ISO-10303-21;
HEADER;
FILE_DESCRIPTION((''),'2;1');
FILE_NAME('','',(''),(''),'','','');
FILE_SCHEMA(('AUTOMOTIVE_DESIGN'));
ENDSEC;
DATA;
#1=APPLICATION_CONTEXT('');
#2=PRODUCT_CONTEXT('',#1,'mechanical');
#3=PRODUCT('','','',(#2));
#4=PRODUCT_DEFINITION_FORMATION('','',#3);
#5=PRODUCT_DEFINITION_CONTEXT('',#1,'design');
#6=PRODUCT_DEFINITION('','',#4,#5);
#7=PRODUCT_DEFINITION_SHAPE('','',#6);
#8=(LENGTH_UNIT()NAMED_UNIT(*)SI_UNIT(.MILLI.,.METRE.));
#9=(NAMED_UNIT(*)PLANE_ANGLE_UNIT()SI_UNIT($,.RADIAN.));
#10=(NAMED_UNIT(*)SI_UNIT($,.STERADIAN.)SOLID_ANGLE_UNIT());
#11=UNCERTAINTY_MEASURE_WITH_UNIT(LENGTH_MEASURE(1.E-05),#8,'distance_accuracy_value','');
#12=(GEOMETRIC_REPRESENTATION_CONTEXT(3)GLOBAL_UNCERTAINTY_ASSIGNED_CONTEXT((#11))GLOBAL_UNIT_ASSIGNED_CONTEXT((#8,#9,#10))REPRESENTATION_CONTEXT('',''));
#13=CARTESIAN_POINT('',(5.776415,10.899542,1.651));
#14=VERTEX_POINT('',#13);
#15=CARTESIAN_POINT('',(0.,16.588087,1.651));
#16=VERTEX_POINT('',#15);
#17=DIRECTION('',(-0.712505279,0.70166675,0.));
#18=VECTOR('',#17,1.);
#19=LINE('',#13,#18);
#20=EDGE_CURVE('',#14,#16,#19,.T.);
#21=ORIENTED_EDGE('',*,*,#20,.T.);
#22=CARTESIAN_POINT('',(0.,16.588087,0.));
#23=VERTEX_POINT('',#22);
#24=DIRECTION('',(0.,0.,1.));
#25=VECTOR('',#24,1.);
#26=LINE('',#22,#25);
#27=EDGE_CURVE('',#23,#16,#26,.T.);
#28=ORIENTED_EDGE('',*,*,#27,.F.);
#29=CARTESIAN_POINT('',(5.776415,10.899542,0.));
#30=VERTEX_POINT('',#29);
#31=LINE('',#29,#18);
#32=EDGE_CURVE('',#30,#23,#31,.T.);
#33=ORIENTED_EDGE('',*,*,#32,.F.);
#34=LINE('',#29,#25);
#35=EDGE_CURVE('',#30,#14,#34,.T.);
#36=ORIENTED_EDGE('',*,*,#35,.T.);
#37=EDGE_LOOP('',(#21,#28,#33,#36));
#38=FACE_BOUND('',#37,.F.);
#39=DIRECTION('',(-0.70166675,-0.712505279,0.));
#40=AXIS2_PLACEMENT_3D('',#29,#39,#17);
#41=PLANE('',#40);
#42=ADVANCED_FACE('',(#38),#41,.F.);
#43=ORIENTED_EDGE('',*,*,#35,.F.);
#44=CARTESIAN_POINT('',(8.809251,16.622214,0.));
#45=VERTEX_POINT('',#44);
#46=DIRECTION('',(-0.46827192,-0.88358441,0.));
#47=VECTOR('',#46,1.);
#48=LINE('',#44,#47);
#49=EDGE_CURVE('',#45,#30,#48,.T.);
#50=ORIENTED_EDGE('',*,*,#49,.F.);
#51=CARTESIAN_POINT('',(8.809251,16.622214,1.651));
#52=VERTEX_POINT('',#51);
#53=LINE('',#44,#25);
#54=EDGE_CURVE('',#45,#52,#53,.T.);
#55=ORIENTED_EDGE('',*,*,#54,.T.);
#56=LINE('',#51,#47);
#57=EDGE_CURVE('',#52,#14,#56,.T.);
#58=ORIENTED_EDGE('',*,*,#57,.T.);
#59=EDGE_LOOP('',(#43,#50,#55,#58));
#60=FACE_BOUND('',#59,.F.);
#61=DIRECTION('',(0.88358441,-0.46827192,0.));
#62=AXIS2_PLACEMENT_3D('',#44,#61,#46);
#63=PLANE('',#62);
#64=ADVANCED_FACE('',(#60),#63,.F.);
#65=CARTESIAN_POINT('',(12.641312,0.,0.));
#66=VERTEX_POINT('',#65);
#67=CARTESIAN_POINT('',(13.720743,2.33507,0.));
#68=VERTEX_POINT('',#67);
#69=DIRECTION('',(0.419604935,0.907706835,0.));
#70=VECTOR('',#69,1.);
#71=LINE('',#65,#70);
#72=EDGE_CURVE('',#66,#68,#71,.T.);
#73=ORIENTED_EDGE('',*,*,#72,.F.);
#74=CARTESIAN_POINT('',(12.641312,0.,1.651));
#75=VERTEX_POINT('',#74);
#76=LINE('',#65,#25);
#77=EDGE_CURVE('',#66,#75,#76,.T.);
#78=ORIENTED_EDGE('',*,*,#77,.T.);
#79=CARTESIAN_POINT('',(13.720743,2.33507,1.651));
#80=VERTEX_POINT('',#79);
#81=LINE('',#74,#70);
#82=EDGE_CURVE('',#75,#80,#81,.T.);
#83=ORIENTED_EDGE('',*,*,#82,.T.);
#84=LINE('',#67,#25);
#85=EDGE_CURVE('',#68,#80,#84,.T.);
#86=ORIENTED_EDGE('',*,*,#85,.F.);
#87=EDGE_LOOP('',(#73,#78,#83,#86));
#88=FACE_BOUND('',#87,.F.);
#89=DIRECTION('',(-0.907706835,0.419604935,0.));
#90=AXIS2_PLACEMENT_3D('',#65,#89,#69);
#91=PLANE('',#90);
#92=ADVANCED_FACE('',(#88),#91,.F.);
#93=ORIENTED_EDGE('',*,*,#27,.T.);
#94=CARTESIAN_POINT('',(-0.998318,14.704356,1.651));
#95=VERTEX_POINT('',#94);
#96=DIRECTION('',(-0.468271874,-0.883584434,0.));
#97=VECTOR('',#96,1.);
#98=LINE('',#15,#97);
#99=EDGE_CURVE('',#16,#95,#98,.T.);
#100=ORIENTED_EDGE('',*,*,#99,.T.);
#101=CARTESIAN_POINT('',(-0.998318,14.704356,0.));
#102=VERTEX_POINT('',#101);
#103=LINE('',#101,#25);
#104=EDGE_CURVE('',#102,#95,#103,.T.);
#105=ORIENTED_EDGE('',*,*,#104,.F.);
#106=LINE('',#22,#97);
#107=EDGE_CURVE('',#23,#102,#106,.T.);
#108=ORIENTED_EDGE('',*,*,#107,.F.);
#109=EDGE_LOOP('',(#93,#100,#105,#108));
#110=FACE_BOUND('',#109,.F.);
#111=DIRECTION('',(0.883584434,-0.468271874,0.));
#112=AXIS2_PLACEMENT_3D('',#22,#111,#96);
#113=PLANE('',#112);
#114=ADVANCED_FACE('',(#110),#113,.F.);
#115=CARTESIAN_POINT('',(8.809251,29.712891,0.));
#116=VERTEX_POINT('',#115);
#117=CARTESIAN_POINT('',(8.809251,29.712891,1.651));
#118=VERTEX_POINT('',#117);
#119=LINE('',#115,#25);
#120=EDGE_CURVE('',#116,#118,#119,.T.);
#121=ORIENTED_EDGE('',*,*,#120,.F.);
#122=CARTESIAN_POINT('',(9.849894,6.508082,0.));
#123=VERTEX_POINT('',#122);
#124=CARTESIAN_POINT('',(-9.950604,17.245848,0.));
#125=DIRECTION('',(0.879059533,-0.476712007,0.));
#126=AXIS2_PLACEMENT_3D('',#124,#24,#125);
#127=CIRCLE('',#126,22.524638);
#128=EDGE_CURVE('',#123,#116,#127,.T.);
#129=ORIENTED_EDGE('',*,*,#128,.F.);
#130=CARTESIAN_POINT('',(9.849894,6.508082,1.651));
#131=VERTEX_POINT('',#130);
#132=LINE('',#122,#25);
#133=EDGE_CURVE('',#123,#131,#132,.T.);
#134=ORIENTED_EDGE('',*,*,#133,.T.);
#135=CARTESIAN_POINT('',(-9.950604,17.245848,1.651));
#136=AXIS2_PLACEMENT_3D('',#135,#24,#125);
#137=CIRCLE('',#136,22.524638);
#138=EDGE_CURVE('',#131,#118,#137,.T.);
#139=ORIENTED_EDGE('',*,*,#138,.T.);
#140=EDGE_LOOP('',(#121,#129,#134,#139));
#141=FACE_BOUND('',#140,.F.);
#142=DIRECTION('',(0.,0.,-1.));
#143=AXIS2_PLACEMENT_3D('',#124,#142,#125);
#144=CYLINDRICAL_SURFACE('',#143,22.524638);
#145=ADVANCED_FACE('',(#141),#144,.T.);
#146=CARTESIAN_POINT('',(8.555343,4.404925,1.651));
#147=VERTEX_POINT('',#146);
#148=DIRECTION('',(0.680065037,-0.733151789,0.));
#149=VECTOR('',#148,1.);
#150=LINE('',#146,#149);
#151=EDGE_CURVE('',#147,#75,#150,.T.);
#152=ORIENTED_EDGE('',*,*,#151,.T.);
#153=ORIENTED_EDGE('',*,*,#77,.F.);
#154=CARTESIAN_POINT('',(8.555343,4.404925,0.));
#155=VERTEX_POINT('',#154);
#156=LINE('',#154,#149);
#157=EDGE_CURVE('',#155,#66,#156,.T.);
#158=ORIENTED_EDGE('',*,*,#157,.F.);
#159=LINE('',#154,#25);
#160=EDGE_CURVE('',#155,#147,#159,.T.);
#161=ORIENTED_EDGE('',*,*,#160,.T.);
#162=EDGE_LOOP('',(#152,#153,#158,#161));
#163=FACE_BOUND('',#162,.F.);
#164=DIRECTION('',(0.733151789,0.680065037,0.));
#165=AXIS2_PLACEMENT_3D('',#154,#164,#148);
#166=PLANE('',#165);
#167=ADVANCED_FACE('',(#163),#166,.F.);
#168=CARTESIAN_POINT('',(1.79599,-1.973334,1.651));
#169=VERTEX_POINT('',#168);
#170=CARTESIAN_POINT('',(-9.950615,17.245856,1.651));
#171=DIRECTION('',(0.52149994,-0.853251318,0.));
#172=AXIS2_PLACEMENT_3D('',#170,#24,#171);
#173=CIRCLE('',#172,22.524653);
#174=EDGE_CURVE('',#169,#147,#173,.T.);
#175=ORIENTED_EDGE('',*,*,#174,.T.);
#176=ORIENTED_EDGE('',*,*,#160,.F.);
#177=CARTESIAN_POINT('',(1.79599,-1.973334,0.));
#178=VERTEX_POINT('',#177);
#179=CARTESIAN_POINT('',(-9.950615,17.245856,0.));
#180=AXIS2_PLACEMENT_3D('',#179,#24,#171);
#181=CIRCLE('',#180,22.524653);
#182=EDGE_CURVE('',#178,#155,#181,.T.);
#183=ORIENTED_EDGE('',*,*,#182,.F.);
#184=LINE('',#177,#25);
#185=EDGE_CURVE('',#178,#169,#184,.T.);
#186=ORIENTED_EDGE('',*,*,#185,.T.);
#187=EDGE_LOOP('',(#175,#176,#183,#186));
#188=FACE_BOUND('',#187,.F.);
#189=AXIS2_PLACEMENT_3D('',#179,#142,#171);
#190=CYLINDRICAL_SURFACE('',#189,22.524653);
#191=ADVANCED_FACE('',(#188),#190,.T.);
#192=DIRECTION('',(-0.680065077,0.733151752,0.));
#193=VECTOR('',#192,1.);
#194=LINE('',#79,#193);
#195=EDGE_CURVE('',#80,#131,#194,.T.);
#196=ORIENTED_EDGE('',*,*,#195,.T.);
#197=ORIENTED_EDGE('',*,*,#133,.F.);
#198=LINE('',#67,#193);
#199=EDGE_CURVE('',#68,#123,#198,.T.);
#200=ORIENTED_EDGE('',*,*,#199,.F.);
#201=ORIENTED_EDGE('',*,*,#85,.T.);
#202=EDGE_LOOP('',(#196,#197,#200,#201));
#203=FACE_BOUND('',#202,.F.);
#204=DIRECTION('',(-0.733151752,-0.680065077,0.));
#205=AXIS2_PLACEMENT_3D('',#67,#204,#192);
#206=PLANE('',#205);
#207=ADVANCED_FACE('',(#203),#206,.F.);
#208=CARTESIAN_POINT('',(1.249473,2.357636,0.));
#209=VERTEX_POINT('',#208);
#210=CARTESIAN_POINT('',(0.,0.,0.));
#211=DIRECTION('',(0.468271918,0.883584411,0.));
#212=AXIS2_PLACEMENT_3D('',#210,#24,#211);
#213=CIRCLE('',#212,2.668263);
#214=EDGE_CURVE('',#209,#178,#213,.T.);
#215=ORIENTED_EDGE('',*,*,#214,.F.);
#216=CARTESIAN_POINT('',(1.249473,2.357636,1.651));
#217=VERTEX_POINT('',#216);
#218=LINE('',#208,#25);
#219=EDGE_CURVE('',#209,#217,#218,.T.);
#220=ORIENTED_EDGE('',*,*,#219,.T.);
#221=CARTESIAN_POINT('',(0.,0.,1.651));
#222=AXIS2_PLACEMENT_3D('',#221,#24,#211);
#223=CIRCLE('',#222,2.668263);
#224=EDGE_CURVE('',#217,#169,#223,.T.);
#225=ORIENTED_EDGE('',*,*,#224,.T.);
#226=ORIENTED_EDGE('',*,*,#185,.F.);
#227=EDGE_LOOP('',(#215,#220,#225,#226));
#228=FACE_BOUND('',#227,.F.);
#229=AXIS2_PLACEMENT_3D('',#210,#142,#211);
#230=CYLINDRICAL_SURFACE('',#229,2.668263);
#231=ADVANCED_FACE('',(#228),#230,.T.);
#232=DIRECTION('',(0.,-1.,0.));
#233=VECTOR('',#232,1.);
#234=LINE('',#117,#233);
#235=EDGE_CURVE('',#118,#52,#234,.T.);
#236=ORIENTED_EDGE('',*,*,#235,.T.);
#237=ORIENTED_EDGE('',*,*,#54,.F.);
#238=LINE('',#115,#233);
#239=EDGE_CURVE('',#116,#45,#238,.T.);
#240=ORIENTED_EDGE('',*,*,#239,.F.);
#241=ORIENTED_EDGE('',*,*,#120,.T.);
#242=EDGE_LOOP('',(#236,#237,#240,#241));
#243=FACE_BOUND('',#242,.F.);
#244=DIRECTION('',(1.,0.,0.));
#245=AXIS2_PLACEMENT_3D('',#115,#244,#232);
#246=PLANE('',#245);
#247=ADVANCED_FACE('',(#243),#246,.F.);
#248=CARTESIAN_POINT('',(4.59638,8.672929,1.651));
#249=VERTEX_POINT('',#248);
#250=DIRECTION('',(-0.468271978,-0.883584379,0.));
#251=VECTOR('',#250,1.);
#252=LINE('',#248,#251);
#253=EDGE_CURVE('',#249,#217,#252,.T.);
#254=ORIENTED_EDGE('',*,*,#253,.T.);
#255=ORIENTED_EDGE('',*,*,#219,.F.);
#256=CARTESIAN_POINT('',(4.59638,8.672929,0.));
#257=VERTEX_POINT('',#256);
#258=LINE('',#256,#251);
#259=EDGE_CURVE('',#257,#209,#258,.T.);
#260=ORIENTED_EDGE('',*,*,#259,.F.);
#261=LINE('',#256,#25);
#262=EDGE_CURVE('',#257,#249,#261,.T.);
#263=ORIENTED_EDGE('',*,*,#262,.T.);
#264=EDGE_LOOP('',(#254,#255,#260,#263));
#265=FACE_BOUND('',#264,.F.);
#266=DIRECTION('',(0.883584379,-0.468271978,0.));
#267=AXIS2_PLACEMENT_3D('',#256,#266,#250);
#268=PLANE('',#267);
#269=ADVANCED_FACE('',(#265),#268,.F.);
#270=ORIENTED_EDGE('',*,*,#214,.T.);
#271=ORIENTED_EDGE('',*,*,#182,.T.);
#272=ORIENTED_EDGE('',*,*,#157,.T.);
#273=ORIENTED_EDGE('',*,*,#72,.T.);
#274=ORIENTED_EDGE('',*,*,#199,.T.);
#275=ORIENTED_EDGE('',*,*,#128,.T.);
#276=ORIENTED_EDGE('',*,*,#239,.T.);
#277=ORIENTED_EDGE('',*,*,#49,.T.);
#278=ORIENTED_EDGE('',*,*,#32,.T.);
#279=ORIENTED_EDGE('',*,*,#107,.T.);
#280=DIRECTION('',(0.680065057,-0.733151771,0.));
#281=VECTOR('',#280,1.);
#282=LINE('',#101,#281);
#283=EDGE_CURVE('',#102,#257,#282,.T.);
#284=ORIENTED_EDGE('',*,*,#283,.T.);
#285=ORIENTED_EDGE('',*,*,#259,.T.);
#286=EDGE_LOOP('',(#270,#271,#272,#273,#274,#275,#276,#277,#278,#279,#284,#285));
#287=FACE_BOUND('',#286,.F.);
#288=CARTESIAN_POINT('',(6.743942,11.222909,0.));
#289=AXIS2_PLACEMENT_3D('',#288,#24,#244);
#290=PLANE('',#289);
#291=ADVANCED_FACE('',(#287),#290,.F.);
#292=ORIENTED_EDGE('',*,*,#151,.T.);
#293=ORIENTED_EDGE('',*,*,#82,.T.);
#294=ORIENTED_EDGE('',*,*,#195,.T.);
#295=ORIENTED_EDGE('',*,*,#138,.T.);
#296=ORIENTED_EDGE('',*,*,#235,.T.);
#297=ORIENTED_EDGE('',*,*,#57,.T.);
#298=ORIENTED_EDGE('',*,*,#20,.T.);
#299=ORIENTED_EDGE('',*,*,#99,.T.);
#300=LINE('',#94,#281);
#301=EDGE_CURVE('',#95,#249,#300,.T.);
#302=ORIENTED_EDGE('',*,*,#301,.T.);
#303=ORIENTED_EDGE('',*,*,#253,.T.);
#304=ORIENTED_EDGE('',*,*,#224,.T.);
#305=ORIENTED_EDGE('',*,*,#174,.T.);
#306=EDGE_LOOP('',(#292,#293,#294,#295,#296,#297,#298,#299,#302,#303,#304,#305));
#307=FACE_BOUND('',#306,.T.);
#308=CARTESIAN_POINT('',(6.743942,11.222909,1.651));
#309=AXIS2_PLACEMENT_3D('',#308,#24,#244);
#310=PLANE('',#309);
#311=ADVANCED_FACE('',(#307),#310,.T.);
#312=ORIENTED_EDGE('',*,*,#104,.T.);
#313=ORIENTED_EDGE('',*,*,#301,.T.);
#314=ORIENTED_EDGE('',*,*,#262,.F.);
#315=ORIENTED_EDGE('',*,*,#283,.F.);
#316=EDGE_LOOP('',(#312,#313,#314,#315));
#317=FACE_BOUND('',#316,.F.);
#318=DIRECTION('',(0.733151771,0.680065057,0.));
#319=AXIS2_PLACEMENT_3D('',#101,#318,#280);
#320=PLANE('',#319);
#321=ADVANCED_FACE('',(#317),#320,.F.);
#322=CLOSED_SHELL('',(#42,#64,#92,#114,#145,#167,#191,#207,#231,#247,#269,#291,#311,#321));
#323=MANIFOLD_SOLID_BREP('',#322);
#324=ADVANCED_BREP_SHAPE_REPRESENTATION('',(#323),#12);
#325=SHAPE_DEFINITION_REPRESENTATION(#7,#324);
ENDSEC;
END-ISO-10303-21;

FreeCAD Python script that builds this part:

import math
import FreeCAD as App
import Part
import Sketcher
Q = App.Units.Quantity

doc = App.newDocument("Part")
params = doc.addObject("Spreadsheet::Sheet", "Params")
for row, (alias, value) in enumerate([
    ("pad1_length", "0.065 in"),
], start=1):
    params.set(f"A{row}", alias)
    params.set(f"B{row}", "=" + value)
    params.setAlias(f"B{row}", alias)

body = doc.addObject("PartDesign::Body", "Body")

# Sketch on XY plane
sketch1 = body.newObject("Sketcher::SketchObject", "Sketch")
sketch1.AttachmentSupport = (doc.getObject("XY_Plane"), [""])
sketch1.MapMode = "FlatFace"
sketch1.addGeometry([
    Part.LineSegment(App.Vector(4.6, 8.7, 0), App.Vector(1.2, 2.4, 0)),  # 0
    Part.ArcOfCircle(Part.Circle(App.Vector(0, 0, 0), App.Vector(0, 0, 1), 2.7), math.radians(62), math.radians(312)),  # 1
    Part.ArcOfCircle(Part.Circle(App.Vector(-10, 17.2, 0), App.Vector(0, 0, 1), 22.5), math.radians(-59), math.radians(-35)),  # 2
    Part.LineSegment(App.Vector(8.6, 4.4, 0), App.Vector(12.6, 0, 0)),  # 3
    Part.LineSegment(App.Vector(12.6, 0, 0), App.Vector(13.7, 2.3, 0)),  # 4
    Part.LineSegment(App.Vector(13.7, 2.3, 0), App.Vector(9.8, 6.5, 0)),  # 5
    Part.ArcOfCircle(Part.Circle(App.Vector(-10, 17.2, 0), App.Vector(0, 0, 1), 22.5), math.radians(-28), math.radians(34)),  # 6
    Part.LineSegment(App.Vector(8.8, 29.7, 0), App.Vector(8.8, 16.6, 0)),  # 7
    Part.LineSegment(App.Vector(8.8, 16.6, 0), App.Vector(5.8, 10.9, 0)),  # 8
    Part.LineSegment(App.Vector(5.8, 10.9, 0), App.Vector(0, 16.6, 0)),  # 9
    Part.LineSegment(App.Vector(0, 16.6, 0), App.Vector(-1, 14.7, 0)),  # 10
    Part.LineSegment(App.Vector(-1, 14.7, 0), App.Vector(4.6, 8.7, 0)),  # 11
], False)
sketch1.addConstraint([
    Sketcher.Constraint("Coincident", 0, 2, 1, 1),
    Sketcher.Constraint("Coincident", 1, 2, 2, 1),
    Sketcher.Constraint("Coincident", 2, 2, 3, 1),
    Sketcher.Constraint("Coincident", 3, 2, 4, 1),
    Sketcher.Constraint("Coincident", 4, 2, 5, 1),
    Sketcher.Constraint("Coincident", 5, 2, 6, 1),
    Sketcher.Constraint("Coincident", 6, 2, 7, 1),
    Sketcher.Constraint("Coincident", 7, 2, 8, 1),
    Sketcher.Constraint("Coincident", 8, 2, 9, 1),
    Sketcher.Constraint("Coincident", 9, 2, 10, 1),
    Sketcher.Constraint("Coincident", 10, 2, 11, 1),
    Sketcher.Constraint("Coincident", 11, 2, 0, 1),
    Sketcher.Constraint("Vertical", 7),
    Sketcher.Constraint("Coincident", 1, 3, -1, 1),
    Sketcher.Constraint("PointOnObject", 3, 2, -1),
    Sketcher.Constraint("PointOnObject", 9, 2, -2),
    Sketcher.Constraint("Parallel", 3, 5),
    Sketcher.Constraint("Parallel", 0, 8),
    Sketcher.Constraint("Parallel", 8, 10),
    Sketcher.Constraint("Parallel", 5, 11),
    Sketcher.Constraint("Radius", 6, Q("22.524638 mm")),
    Sketcher.Constraint("Radius", 1, Q("2.668263 mm")),
    Sketcher.Constraint("Radius", 2, Q("22.524653 mm")),
    Sketcher.Constraint("DistanceX", 2, 2, 4, 2, Q("5.1654 mm")),
    Sketcher.Constraint("DistanceY", 10, 2, 2, 3, Q("2.5415 mm")),
    Sketcher.Constraint("DistanceX", 10, 2, 11, 2, Q("5.594698 mm")),
    Sketcher.Constraint("Distance", 5, Q("5.69188 mm")),
    Sketcher.Constraint("Distance", 9, Q("8.107189 mm")),
    Sketcher.Constraint("Distance", 10, Q("2.13192 mm")),
    Sketcher.Constraint("Distance", 11, Q("8.22671 mm")),
    Sketcher.Constraint("DistanceY", 7, 2, 7, 1, Q("13.090677 mm")),
    Sketcher.Constraint("DistanceX", -1, 1, 1, 2, Q("1.79599 mm")),
    Sketcher.Constraint("DistanceX", -1, 1, 3, 2, Q("12.641312 mm")),
    Sketcher.Constraint("DistanceY", -1, 1, 4, 2, Q("2.33507 mm")),
    Sketcher.Constraint("DistanceX", -1, 1, 6, 2, Q("8.809251 mm")),
    Sketcher.Constraint("DistanceY", -1, 1, 6, 2, Q("29.712891 mm")),
    Sketcher.Constraint("DistanceX", 10, 2, -1, 1, Q("0.998318 mm")),
    Sketcher.Constraint("DistanceY", -1, 1, 11, 2, Q("8.672929 mm")),
])
pad1 = body.newObject("PartDesign::Pad", "Pad")
pad1.Profile = sketch1
pad1.setExpression("Length", "Params.pad1_length")

doc.recompute()
